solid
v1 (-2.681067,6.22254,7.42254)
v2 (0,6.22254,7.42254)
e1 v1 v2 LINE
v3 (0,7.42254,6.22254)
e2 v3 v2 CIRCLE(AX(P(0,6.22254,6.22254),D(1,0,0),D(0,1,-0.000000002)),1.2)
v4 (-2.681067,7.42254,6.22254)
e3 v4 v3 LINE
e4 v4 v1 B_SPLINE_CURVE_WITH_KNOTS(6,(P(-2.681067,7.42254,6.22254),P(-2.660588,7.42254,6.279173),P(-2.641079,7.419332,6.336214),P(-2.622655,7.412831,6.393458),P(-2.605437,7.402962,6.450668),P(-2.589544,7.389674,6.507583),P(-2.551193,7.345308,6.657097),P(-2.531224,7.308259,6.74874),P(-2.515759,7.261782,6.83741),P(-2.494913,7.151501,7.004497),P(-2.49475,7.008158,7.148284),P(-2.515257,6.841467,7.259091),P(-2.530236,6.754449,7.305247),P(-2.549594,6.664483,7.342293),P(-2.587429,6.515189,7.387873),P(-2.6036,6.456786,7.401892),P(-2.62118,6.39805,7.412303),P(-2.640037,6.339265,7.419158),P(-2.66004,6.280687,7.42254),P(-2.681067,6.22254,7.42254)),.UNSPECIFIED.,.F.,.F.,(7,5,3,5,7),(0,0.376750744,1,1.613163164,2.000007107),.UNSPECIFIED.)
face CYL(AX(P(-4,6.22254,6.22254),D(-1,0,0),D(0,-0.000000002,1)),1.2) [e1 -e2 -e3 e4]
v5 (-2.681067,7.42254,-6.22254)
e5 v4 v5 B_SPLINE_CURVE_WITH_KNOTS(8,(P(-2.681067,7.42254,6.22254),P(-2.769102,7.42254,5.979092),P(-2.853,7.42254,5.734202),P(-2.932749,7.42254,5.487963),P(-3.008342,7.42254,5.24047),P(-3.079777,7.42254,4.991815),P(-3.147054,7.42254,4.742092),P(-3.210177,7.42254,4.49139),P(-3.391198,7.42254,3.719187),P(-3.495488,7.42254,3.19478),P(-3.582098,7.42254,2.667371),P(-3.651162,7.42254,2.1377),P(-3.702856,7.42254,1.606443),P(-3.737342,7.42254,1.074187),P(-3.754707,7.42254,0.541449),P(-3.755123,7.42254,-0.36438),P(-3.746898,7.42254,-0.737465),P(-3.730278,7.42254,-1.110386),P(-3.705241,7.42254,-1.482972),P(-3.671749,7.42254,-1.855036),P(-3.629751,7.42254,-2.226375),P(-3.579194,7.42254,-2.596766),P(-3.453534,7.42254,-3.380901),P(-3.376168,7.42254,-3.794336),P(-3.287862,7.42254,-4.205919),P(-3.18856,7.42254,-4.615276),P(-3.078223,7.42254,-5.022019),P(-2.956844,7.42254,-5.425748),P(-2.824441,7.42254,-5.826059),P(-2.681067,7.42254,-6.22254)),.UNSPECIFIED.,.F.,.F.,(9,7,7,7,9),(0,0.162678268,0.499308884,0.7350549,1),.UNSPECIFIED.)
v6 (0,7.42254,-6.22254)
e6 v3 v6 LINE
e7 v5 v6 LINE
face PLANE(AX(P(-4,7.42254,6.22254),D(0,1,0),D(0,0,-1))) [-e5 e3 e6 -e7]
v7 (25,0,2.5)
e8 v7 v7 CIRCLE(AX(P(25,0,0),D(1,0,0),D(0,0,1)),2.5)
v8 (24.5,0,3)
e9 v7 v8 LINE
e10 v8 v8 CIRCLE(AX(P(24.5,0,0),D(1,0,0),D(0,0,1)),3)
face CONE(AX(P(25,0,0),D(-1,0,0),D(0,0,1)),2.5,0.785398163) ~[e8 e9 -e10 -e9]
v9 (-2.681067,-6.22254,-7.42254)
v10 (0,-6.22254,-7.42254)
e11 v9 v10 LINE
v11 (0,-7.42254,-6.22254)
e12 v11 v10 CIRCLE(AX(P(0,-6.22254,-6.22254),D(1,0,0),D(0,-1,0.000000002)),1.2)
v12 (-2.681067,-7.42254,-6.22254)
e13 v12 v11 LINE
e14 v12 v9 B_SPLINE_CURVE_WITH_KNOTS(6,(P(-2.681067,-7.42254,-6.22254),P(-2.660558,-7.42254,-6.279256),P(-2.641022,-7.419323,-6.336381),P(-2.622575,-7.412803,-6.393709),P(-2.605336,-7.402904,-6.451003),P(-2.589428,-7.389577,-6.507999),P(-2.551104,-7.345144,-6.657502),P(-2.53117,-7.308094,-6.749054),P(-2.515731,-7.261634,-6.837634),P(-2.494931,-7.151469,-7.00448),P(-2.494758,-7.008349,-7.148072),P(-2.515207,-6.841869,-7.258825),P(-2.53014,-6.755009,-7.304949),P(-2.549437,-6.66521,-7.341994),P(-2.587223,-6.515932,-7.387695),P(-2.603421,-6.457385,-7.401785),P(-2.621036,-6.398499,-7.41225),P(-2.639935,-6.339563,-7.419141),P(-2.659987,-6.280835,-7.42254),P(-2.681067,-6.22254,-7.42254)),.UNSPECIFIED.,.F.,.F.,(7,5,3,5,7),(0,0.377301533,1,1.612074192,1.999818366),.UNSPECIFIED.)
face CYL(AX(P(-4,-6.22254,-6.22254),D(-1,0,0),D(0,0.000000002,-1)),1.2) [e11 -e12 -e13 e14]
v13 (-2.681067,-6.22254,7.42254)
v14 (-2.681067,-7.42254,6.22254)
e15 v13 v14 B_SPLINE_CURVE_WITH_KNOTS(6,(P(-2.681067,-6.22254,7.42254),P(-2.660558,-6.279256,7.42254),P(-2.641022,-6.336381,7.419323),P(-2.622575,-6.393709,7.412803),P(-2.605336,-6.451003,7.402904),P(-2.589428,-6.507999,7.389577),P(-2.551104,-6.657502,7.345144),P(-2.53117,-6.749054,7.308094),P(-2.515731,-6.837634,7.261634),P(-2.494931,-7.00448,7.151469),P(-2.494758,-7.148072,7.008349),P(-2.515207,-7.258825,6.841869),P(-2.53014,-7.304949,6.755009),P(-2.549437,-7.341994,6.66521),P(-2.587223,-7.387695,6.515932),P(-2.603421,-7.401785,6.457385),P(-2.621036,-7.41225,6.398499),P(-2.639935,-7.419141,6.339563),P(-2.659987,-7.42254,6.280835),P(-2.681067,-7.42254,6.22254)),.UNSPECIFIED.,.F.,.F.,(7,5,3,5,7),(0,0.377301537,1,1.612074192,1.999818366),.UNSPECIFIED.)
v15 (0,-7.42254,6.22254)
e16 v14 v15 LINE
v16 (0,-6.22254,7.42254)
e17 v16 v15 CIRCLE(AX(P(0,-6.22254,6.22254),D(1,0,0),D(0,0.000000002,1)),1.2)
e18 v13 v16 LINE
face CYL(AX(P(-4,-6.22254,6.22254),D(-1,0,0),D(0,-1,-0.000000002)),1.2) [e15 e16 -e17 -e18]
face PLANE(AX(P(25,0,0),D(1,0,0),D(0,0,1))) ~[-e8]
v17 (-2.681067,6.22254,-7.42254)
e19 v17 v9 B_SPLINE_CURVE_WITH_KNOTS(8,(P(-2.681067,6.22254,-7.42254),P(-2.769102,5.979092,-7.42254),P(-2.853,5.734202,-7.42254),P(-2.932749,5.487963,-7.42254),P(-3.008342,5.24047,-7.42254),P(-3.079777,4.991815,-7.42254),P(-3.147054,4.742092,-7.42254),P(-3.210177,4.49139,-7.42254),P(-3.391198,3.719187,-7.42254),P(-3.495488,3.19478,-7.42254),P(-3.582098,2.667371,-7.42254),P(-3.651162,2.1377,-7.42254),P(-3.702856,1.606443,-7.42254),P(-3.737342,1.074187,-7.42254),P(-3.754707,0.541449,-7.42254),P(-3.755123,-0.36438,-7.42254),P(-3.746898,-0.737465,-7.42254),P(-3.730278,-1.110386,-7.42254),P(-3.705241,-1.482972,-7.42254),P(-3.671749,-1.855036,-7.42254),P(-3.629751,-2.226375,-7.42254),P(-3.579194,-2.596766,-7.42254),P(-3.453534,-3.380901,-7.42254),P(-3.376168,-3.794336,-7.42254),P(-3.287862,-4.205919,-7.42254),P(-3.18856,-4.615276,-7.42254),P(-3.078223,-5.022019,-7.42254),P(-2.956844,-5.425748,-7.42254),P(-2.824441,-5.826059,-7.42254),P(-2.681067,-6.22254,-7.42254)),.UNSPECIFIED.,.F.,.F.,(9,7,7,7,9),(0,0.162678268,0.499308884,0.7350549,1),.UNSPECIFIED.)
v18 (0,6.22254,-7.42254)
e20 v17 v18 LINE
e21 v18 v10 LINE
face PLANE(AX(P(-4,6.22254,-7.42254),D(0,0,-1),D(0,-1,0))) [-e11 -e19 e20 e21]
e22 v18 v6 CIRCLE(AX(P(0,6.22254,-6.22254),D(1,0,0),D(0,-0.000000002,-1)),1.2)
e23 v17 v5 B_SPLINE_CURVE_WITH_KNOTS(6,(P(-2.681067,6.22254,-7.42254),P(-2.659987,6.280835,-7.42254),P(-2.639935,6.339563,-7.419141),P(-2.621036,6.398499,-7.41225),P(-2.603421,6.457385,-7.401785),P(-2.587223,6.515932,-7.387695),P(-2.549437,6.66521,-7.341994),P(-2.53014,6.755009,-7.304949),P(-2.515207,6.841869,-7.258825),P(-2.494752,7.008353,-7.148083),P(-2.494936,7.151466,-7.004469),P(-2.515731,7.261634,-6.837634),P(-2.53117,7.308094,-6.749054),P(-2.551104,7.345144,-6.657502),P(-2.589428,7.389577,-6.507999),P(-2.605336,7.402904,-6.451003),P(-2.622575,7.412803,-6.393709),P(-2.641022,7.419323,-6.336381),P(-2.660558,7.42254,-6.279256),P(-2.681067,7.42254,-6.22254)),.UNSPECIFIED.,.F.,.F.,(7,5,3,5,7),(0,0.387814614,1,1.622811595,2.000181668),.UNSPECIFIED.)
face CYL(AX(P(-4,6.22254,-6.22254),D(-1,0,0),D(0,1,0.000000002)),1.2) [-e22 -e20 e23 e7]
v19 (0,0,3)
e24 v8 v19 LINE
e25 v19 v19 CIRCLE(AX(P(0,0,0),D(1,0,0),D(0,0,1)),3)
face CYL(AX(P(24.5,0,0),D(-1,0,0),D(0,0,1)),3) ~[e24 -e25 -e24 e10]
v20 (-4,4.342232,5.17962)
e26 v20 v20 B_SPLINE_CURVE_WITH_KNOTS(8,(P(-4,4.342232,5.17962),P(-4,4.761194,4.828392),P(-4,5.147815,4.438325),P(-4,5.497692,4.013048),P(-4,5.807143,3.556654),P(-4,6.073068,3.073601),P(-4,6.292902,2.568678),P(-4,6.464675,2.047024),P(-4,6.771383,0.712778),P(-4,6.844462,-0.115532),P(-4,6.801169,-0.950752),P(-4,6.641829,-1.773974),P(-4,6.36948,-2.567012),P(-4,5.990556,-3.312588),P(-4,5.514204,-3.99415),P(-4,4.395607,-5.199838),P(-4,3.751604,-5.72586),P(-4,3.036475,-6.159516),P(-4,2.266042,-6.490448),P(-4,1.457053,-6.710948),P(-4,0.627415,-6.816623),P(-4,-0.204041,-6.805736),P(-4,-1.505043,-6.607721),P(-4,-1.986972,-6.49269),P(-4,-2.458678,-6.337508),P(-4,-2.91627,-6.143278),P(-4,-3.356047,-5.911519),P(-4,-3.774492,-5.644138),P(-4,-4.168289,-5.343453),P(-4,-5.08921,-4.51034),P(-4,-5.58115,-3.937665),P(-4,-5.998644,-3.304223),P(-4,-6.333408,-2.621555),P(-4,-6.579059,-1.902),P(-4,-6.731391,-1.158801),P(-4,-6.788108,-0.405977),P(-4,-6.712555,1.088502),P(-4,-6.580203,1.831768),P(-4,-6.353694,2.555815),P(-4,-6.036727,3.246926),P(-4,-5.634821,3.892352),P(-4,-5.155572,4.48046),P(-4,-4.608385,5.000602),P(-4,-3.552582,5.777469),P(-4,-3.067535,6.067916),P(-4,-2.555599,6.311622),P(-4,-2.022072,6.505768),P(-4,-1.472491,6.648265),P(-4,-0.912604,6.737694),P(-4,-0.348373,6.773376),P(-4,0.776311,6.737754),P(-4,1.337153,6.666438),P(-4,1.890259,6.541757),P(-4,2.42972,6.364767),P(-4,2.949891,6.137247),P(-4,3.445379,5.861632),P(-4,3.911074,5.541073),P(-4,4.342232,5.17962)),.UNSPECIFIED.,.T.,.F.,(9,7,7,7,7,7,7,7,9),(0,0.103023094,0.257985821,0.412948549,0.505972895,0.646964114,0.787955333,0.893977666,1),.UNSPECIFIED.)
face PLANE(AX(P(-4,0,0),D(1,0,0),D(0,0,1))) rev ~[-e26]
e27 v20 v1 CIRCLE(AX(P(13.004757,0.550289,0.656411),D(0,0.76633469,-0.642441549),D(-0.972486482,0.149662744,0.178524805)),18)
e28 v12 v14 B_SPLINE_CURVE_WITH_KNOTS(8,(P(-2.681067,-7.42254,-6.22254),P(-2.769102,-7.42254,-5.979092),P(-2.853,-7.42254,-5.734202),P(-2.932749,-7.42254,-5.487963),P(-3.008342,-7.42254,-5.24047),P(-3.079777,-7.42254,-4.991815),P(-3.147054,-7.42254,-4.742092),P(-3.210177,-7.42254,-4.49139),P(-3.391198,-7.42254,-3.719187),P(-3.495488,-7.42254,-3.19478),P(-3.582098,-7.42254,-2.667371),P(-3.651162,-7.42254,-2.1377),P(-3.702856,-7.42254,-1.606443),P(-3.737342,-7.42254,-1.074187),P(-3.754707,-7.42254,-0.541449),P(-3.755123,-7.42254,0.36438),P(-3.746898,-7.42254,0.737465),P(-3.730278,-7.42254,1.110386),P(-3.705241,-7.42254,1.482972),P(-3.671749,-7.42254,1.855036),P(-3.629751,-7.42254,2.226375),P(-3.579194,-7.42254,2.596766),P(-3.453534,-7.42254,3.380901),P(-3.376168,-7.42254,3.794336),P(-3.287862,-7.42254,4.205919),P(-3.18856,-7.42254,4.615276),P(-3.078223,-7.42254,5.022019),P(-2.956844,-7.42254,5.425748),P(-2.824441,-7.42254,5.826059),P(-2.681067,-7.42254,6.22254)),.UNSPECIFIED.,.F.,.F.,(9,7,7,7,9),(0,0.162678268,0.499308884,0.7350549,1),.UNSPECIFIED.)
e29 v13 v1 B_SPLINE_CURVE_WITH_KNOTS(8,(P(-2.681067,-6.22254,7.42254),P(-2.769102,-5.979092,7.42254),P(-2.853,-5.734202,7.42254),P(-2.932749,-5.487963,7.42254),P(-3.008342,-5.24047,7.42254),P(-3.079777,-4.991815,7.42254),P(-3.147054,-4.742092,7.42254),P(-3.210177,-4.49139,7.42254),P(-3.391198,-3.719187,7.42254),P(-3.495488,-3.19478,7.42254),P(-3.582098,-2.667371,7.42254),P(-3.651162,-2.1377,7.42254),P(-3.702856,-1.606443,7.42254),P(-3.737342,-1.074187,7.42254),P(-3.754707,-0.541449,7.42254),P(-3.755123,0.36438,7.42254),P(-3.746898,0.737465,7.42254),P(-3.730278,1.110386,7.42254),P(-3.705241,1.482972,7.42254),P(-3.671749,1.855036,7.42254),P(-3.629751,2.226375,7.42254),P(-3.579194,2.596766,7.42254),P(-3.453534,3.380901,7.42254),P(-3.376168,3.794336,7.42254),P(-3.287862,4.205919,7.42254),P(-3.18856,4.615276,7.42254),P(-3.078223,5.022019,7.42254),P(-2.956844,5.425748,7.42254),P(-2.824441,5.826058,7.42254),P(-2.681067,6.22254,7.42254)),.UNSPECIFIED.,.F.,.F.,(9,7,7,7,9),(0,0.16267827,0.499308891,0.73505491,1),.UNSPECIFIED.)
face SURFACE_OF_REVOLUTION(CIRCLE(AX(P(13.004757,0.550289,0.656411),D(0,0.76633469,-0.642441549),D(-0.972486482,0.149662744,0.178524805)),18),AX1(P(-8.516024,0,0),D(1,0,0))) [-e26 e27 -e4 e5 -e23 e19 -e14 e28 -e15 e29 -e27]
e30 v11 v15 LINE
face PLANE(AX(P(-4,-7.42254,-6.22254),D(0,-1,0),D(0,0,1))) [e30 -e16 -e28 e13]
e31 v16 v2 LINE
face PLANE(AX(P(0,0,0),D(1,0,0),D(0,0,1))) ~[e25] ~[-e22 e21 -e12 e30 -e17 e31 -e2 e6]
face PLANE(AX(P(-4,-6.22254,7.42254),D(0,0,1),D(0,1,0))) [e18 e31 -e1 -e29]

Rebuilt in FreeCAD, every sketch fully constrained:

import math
import FreeCAD as App
import Part
import Sketcher

V = App.Vector
Q = App.Units.Quantity


def add_polygon(sketch, points):
    """Adds a closed chain of lines whose ends are joined by coincident constraints."""
    first, n = sketch.GeometryCount, len(points)
    for a, b in zip(points, points[1:] + points[:1]):
        sketch.addGeometry(Part.LineSegment(App.Vector(*a, 0), App.Vector(*b, 0)), False)
    for i in range(n):
        sketch.addConstraint(Sketcher.Constraint("Coincident", first + i, 2, first + (i + 1) % n, 1))

doc = App.newDocument("Part")
body = doc.addObject("PartDesign::Body", "Body")

sketch1 = body.newObject("Sketcher::SketchObject", "Sketch")
sketch1.AttachmentSupport = (doc.getObject("XY_Plane"), [""])
sketch1.MapMode = "FlatFace"
add_polygon(sketch1, [(0, 3), (0, 10), (-4, 10), (-4, 0), (25, 0), (25, 2.5), (24.5, 3)])
sketch1.addConstraint(Sketcher.Constraint("Vertical", 0))
sketch1.addConstraint(Sketcher.Constraint("Horizontal", 1))
sketch1.addConstraint(Sketcher.Constraint("Vertical", 2))
sketch1.addConstraint(Sketcher.Constraint("Horizontal", 3))
sketch1.addConstraint(Sketcher.Constraint("Vertical", 4))
sketch1.addConstraint(Sketcher.Constraint("Horizontal", 6))
sketch1.addConstraint(Sketcher.Constraint("PointOnObject", 0, 2, -2))
sketch1.addConstraint(Sketcher.Constraint("PointOnObject", 2, 2, -1))
sketch1.addConstraint(Sketcher.Constraint("DistanceX", 1, 2, 1, 1, Q("4 mm")))
sketch1.addConstraint(Sketcher.Constraint("DistanceX", 3, 1, 3, 2, Q("29 mm")))
sketch1.addConstraint(Sketcher.Constraint("DistanceY", 0, 1, 0, 2, Q("7 mm")))
sketch1.addConstraint(Sketcher.Constraint("DistanceY", 2, 2, 2, 1, Q("10 mm")))
sketch1.addConstraint(Sketcher.Constraint("Angle", 5, Q("135 deg")))
sketch1.addConstraint(Sketcher.Constraint("DistanceX", 6, 2, 6, 1, Q("24.5 mm")))
revolution = body.newObject("PartDesign::Revolution", "Revolution")
revolution.Profile = sketch1
revolution.ReferenceAxis = (sketch1, ["H_Axis"])
revolution.Angle = 360

sketch2 = body.newObject("Sketcher::SketchObject", "Sketch001")
sketch2.AttachmentSupport = (doc.getObject("YZ_Plane"), [""])
sketch2.MapMode = "FlatFace"
sketch2.AttachmentOffset = App.Placement(V(0, 0, -4), App.Rotation())
sketch2.addGeometry(Part.Circle(V(0, 0, 0), V(0, 0, 1), 12.439657), False)
sketch2.addGeometry(Part.LineSegment(V(7.42254, -6.22254, 0), V(7.42254, 6.22254, 0)), False)
sketch2.addGeometry(Part.ArcOfCircle(Part.Circle(V(6.22254, 6.22254, 0), V(0, 0, 1), 1.2), math.radians(0), math.radians(90)), False)
sketch2.addGeometry(Part.LineSegment(V(6.22254, 7.42254, 0), V(-6.22254, 7.42254, 0)), False)
sketch2.addGeometry(Part.ArcOfCircle(Part.Circle(V(-6.22254, 6.22254, 0), V(0, 0, 1), 1.2), math.radians(90), math.radians(180)), False)
sketch2.addGeometry(Part.LineSegment(V(-7.42254, 6.22254, 0), V(-7.42254, -6.22254, 0)), False)
sketch2.addGeometry(Part.ArcOfCircle(Part.Circle(V(-6.22254, -6.22254, 0), V(0, 0, 1), 1.2), math.radians(180), math.radians(270)), False)
sketch2.addGeometry(Part.LineSegment(V(-6.22254, -7.42254, 0), V(6.22254, -7.42254, 0)), False)
sketch2.addGeometry(Part.ArcOfCircle(Part.Circle(V(6.22254, -6.22254, 0), V(0, 0, 1), 1.2), math.radians(-90), math.radians(0)), False)
sketch2.addConstraint(Sketcher.Constraint("Tangent", 1, 2, 2, 1))
sketch2.addConstraint(Sketcher.Constraint("Tangent", 2, 2, 3, 1))
sketch2.addConstraint(Sketcher.Constraint("Tangent", 3, 2, 4, 1))
sketch2.addConstraint(Sketcher.Constraint("Tangent", 4, 2, 5, 1))
sketch2.addConstraint(Sketcher.Constraint("Tangent", 5, 2, 6, 1))
sketch2.addConstraint(Sketcher.Constraint("Tangent", 6, 2, 7, 1))
sketch2.addConstraint(Sketcher.Constraint("Tangent", 7, 2, 8, 1))
sketch2.addConstraint(Sketcher.Constraint("Tangent", 8, 2, 1, 1))
sketch2.addConstraint(Sketcher.Constraint("Vertical", 1))
sketch2.addConstraint(Sketcher.Constraint("Horizontal", 3))
sketch2.addConstraint(Sketcher.Constraint("Vertical", 5))
sketch2.addConstraint(Sketcher.Constraint("Horizontal", 7))
sketch2.addConstraint(Sketcher.Constraint("Coincident", 0, 3, -1, 1))
sketch2.addConstraint(Sketcher.Constraint("Equal", 2, 4))
sketch2.addConstraint(Sketcher.Constraint("Equal", 4, 6))
sketch2.addConstraint(Sketcher.Constraint("Equal", 6, 8))
sketch2.addConstraint(Sketcher.Constraint("Symmetric", 2, 3, 6, 3, -1, 1))
sketch2.addConstraint(Sketcher.Constraint("Equal", 7, 1))
sketch2.addConstraint(Sketcher.Constraint("Radius", 2, Q("1.2 mm")))
sketch2.addConstraint(Sketcher.Constraint("Diameter", 0, Q("24.879314 mm")))
sketch2.addConstraint(Sketcher.Constraint("DistanceX", 3, 2, 3, 1, Q("12.445079 mm")))
pocket1 = body.newObject("PartDesign::Pocket", "Pocket")
pocket1.Profile = sketch2
pocket1.Type = "ThroughAll"
pocket1.Reversed = True

sketch3 = body.newObject("Sketcher::SketchObject", "Sketch002")
sketch3.AttachmentSupport = (doc.getObject("XY_Plane"), [""])
sketch3.MapMode = "FlatFace"
sketch3.addGeometry(Part.LineSegment(V(-2.5, 10, 0), V(-4.5, 10, 0)), False)
sketch3.addGeometry(Part.LineSegment(V(-4.5, 10, 0), V(-4.5, 5.049826, 0)), False)
sketch3.addGeometry(Part.ArcOfCircle(Part.Circle(V(13.004757, 0.856559, 0), V(0, 0, 1), 18), math.radians(149.471362), math.radians(166.528638)), False)
sketch3.addConstraint(Sketcher.Constraint("Coincident", 0, 2, 1, 1))
sketch3.addConstraint(Sketcher.Constraint("Coincident", 1, 2, 2, 2))
sketch3.addConstraint(Sketcher.Constraint("Coincident", 2, 1, 0, 1))
sketch3.addConstraint(Sketcher.Constraint("Horizontal", 0))
sketch3.addConstraint(Sketcher.Constraint("Vertical", 1))
sketch3.addConstraint(Sketcher.Constraint("Radius", 2, Q("18 mm")))
sketch3.addConstraint(Sketcher.Constraint("DistanceX", 0, 2, 0, 1, Q("2 mm")))
sketch3.addConstraint(Sketcher.Constraint("DistanceY", -1, 1, 0, 2, Q("10 mm")))
sketch3.addConstraint(Sketcher.Constraint("DistanceX", 0, 2, -1, 1, Q("4.5 mm")))
sketch3.addConstraint(Sketcher.Constraint("DistanceY", 1, 2, 1, 1, Q("4.950174 mm")))
groove = body.newObject("PartDesign::Groove", "Groove")
groove.Profile = sketch3
groove.ReferenceAxis = (sketch3, ["H_Axis"])
groove.Angle = 360

doc.recompute()
